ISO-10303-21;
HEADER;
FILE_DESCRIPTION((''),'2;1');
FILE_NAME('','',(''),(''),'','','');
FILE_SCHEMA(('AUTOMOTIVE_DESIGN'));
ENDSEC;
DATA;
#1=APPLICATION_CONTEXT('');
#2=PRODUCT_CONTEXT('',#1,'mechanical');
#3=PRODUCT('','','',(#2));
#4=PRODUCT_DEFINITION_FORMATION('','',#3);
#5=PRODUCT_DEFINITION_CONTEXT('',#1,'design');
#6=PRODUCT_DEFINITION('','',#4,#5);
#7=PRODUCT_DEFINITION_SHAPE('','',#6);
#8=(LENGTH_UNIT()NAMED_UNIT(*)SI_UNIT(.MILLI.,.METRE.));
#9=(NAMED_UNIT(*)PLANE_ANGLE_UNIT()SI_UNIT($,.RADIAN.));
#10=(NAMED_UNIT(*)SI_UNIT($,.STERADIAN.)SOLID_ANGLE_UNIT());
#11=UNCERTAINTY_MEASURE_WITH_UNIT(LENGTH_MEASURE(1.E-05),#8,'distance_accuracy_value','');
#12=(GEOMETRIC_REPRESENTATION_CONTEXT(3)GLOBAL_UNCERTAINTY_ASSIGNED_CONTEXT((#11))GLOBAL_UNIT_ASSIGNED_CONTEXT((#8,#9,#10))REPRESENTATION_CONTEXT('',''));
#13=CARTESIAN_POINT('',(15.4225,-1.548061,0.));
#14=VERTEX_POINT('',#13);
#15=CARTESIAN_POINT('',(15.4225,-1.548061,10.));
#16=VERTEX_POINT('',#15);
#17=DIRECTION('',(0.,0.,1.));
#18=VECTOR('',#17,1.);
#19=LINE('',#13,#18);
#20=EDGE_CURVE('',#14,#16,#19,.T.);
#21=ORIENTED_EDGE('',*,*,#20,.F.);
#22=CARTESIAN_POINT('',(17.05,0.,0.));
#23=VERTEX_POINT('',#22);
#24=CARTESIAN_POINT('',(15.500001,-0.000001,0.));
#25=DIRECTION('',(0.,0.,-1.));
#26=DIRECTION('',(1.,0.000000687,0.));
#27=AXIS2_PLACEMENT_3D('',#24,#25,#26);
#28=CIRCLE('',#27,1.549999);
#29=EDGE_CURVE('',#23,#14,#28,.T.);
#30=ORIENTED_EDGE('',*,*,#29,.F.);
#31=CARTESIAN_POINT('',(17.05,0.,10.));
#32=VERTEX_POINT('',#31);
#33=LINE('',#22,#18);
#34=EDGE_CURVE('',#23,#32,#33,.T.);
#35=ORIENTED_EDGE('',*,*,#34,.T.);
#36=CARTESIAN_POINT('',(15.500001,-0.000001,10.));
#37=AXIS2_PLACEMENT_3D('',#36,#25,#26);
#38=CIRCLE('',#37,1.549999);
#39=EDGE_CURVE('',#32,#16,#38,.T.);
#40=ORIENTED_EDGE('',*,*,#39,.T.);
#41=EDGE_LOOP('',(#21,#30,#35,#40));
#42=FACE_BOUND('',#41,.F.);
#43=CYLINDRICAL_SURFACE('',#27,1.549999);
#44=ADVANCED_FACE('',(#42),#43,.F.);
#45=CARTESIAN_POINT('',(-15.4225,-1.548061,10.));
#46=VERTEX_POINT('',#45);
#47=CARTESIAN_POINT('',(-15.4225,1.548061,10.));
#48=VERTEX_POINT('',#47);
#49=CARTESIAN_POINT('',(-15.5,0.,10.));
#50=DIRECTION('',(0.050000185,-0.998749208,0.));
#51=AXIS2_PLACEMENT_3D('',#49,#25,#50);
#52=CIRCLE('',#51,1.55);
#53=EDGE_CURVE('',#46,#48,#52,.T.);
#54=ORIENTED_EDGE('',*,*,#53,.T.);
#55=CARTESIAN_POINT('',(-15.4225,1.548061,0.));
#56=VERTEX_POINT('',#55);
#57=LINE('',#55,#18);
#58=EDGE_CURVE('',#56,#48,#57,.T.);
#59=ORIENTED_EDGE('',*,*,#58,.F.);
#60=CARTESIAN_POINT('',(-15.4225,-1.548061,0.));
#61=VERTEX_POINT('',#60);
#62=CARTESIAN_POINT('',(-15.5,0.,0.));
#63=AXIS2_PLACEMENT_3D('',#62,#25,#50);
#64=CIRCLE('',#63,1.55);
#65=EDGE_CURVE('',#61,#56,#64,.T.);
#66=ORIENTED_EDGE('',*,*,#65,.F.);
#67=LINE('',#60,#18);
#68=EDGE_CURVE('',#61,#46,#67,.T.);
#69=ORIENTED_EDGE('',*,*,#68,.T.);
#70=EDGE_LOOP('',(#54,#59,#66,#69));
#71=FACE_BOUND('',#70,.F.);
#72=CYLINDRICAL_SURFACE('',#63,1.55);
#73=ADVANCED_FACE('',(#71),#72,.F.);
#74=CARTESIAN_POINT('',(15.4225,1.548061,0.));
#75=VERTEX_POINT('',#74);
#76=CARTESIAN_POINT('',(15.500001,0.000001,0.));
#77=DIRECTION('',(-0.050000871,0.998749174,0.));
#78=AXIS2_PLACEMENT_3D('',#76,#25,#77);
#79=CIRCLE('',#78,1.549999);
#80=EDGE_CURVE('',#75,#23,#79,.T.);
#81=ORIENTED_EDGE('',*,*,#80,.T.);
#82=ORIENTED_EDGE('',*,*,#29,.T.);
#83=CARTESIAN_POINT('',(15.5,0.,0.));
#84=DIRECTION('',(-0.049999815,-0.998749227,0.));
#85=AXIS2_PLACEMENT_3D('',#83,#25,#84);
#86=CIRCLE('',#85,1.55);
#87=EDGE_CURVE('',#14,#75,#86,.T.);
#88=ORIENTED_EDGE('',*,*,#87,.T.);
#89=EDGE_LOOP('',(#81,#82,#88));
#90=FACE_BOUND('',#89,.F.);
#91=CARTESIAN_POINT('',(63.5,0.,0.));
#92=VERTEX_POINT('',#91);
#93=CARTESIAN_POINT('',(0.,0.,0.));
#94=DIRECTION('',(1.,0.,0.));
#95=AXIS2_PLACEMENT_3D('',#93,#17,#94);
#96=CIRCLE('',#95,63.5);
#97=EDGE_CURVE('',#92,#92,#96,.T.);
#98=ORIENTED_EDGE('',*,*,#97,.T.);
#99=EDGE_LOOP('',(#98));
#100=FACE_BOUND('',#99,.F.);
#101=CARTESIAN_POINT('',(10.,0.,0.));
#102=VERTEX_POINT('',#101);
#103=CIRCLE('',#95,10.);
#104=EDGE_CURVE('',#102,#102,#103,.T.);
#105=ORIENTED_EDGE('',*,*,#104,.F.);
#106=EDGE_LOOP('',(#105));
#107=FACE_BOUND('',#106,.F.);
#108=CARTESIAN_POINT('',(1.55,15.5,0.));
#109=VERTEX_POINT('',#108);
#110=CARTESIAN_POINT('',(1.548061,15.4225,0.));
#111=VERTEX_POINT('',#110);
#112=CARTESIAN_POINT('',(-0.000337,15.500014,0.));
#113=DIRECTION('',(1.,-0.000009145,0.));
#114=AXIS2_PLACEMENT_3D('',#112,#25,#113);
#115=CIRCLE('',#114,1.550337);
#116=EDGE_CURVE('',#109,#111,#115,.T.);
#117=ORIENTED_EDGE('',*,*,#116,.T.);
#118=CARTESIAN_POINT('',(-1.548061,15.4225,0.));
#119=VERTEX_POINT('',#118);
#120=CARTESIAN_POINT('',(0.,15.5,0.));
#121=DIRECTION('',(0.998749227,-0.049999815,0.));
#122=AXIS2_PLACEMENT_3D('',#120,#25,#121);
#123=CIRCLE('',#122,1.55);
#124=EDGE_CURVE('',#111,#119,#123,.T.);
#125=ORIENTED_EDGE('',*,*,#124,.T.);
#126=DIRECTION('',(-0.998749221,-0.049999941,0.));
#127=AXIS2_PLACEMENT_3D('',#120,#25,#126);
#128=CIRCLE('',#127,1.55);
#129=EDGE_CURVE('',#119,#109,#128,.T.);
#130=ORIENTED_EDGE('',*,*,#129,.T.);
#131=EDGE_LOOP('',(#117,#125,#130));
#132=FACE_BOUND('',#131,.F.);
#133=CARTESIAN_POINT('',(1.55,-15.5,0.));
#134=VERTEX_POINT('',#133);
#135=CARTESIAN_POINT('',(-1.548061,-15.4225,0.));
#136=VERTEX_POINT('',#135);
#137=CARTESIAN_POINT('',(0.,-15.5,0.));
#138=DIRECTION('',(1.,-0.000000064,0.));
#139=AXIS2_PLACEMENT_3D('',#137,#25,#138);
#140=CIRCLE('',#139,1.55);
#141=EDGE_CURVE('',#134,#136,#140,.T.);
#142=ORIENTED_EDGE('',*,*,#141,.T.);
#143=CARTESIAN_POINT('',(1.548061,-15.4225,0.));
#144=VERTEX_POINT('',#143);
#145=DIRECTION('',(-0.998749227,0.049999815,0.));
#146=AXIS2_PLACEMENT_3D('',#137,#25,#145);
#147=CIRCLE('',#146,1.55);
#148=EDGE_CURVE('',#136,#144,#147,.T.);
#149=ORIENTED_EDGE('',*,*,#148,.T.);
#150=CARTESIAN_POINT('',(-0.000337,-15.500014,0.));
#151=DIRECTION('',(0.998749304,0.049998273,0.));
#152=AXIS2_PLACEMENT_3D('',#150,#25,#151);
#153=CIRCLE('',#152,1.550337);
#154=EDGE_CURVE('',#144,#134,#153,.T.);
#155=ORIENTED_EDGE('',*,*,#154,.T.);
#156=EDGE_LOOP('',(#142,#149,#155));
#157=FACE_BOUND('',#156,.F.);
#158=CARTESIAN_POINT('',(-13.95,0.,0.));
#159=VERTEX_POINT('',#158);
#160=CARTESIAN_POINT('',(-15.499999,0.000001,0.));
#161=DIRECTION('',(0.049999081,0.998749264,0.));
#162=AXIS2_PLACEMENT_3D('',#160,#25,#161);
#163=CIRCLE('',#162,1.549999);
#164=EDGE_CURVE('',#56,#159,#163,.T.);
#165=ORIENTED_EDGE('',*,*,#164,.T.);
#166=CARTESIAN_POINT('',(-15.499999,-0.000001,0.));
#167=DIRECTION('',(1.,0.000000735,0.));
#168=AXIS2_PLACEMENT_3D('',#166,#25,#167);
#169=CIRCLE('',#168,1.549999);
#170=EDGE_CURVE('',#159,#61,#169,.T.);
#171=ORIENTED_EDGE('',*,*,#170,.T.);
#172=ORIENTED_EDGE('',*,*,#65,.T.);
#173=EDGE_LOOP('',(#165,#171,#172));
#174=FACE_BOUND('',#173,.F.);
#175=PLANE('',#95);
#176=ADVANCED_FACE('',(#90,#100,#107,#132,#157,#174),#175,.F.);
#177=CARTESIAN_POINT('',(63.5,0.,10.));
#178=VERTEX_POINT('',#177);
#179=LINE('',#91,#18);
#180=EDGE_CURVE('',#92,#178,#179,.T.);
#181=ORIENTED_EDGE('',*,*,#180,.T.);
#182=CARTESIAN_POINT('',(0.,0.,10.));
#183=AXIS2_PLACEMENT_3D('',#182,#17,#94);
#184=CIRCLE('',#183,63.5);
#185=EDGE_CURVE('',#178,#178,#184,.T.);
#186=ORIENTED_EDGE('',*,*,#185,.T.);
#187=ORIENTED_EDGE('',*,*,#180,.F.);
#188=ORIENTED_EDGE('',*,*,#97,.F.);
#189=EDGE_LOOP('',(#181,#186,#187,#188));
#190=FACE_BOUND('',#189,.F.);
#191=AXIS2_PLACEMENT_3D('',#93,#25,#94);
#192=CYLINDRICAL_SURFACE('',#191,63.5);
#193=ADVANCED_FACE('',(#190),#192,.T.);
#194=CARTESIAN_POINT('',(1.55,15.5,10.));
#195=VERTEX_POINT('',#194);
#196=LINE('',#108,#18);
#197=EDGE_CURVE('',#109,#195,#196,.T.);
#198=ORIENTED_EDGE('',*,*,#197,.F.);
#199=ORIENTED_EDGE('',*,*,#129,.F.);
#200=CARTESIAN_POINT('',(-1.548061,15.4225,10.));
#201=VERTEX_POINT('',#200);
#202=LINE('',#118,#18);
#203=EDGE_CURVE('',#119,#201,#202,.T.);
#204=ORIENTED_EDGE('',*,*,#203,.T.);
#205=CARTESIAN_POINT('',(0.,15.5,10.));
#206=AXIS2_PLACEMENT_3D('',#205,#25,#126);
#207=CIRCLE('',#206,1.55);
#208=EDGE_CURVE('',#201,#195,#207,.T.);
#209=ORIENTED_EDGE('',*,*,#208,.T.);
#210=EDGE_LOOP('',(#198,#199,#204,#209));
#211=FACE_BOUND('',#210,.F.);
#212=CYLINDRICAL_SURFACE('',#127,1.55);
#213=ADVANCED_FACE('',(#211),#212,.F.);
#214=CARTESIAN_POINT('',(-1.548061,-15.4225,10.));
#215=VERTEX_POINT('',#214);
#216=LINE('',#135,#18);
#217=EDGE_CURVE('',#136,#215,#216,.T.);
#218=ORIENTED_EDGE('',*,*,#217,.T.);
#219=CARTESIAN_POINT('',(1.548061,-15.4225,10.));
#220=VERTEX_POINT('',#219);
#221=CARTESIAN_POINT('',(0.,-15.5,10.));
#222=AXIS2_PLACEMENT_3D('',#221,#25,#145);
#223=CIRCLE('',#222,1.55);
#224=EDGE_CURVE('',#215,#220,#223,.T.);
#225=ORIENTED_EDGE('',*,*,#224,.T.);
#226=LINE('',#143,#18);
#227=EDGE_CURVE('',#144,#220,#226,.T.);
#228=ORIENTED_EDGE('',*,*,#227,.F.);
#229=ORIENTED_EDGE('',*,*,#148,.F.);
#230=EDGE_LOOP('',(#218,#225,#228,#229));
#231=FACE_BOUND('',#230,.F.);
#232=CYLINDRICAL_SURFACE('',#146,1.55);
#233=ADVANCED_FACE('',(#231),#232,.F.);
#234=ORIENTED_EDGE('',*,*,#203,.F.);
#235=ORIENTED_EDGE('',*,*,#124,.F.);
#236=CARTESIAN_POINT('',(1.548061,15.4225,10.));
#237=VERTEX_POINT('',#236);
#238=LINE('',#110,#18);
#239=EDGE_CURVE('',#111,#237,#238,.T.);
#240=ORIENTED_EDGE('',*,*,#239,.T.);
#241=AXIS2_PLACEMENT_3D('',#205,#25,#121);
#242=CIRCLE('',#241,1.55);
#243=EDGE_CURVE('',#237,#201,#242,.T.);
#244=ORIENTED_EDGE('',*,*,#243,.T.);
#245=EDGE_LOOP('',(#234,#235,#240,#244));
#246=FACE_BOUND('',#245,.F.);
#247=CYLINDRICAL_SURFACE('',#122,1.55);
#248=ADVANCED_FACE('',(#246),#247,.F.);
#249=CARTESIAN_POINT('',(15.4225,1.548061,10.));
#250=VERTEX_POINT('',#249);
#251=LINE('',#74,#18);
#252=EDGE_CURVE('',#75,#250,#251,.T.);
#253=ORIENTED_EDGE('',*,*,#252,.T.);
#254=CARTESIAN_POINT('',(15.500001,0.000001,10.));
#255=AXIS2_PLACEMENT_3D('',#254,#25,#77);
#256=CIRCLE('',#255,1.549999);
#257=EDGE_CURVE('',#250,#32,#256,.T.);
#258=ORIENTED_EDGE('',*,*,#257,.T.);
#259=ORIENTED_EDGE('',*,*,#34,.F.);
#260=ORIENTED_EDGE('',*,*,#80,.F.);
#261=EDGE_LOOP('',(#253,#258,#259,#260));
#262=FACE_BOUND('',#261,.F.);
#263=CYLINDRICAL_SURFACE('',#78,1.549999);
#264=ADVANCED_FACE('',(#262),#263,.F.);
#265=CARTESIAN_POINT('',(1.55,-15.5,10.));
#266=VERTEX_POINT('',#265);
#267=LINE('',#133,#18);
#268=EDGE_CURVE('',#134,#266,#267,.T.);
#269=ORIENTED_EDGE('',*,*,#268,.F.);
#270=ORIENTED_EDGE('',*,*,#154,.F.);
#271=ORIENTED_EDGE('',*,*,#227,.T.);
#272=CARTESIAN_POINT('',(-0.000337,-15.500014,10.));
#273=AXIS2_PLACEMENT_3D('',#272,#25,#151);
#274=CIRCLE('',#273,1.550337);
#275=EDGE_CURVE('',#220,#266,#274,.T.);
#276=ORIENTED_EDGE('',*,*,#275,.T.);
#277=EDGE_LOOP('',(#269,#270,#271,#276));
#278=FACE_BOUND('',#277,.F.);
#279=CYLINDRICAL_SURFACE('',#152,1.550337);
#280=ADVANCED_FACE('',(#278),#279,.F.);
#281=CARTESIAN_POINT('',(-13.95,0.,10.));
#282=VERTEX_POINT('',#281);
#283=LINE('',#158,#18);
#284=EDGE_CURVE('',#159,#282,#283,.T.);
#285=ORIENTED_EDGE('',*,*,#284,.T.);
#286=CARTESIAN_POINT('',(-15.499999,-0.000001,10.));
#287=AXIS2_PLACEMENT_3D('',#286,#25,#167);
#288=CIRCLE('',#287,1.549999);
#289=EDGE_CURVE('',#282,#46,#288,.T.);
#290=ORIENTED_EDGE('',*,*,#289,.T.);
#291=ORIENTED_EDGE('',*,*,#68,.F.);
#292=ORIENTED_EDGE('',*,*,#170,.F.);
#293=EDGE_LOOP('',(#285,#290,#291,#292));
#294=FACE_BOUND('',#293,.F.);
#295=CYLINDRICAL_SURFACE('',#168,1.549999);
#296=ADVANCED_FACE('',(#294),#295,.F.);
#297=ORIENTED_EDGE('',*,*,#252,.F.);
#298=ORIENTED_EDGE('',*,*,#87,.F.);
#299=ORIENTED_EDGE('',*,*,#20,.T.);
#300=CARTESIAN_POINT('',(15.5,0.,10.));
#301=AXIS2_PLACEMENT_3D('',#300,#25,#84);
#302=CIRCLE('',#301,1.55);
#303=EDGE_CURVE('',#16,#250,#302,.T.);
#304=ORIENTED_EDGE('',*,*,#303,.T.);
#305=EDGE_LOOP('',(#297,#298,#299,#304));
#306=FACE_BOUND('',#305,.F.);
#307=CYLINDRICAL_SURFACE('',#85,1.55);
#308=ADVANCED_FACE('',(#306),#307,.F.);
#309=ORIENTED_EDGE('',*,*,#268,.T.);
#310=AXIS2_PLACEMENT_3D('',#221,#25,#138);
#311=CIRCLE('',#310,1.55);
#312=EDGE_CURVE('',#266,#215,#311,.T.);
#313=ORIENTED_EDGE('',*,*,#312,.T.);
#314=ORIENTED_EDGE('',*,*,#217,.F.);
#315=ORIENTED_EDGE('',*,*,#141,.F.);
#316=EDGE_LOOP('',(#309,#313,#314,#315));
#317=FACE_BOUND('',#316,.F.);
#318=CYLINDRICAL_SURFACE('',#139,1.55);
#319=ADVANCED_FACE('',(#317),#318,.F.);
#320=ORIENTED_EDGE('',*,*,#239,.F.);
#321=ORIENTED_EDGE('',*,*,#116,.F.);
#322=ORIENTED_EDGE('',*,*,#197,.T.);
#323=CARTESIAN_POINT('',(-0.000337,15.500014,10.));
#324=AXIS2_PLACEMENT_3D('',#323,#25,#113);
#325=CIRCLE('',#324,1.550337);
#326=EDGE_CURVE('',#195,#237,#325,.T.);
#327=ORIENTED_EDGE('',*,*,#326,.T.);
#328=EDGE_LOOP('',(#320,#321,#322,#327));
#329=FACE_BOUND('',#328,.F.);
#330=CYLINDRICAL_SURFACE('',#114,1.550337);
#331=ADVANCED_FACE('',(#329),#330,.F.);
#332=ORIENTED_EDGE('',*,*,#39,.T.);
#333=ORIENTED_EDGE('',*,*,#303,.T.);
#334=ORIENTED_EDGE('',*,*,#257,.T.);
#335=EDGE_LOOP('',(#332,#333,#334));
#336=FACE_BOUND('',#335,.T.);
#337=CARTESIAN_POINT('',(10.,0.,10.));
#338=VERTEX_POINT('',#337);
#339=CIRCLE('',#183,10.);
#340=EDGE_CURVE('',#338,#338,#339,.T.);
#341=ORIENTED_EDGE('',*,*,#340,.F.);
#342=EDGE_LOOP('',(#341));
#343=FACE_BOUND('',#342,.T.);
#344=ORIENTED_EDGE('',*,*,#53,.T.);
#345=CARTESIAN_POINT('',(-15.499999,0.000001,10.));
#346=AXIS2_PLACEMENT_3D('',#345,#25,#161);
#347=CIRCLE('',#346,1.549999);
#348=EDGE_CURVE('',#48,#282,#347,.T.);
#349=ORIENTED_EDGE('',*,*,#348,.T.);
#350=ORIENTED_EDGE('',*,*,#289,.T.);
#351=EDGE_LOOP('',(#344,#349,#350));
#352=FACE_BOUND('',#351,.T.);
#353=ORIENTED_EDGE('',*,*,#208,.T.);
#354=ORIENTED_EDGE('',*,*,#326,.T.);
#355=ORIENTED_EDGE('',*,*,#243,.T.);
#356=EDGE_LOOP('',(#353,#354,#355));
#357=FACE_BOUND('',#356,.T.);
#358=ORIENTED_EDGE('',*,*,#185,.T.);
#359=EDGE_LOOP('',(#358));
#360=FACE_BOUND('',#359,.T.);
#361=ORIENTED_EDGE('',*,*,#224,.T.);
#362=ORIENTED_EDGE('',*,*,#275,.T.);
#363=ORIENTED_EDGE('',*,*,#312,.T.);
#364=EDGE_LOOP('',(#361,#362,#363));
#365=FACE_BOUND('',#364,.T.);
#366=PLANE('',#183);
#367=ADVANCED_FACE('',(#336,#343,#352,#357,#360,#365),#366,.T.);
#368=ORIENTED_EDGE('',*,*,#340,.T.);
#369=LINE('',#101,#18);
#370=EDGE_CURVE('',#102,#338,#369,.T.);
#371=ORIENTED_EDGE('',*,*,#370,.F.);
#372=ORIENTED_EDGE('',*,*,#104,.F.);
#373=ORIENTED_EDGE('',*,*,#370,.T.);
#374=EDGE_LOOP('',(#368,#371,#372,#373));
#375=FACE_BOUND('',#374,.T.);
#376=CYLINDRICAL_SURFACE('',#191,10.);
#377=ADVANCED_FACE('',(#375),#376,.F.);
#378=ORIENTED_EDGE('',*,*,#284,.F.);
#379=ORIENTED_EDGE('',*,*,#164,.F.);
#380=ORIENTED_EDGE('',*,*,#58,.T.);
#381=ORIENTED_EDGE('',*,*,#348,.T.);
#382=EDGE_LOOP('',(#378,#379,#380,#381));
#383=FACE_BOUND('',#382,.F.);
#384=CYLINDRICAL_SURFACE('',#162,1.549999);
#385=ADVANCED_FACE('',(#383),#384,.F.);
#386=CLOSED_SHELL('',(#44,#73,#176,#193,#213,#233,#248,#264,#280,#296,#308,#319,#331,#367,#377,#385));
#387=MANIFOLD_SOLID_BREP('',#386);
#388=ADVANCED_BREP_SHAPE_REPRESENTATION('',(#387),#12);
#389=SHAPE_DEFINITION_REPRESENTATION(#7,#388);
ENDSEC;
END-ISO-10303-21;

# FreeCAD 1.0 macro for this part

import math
import FreeCAD as App
import Part
import Sketcher
from FreeCAD import Vector
Q = App.Units.Quantity

doc = App.newDocument("Part")
body = doc.addObject("PartDesign::Body", "Body")

# Sketch on XY plane
sketch1 = body.newObject("Sketcher::SketchObject", "Sketch")
sketch1.AttachmentSupport = (doc.getObject("XY_Plane"), [""])
sketch1.MapMode = "FlatFace"
sketch1.addGeometry([
    Part.Circle(Vector(0, 0, 0), Vector(0, 0, 1), 63.5),  # 0
    Part.ArcOfCircle(Part.Circle(Vector(0, -15.5, 0), Vector(0, 0, 1), 1.55), math.radians(177.134019), math.radians(359.999996)),  # 1
    Part.ArcOfCircle(Part.Circle(Vector(0, -15.5, 0), Vector(0, 0, 1), 1.55), math.radians(2.865973), math.radians(177.134027)),  # 2
    Part.ArcOfCircle(Part.Circle(Vector(-0.000337, -15.500014, 0), Vector(0, 0, 1), 1.550337), math.radians(0.000524), math.radians(2.865885)),  # 3
    Part.ArcOfCircle(Part.Circle(Vector(-15.5, 0, 0), Vector(0, 0, 1), 1.55), math.radians(87.134005), math.radians(272.865995)),  # 4
    Part.ArcOfCircle(Part.Circle(Vector(-15.499999, 0.000001, 0), Vector(0, 0, 1), 1.549999), math.radians(-0.000042), math.radians(87.134069)),  # 5
    Part.ArcOfCircle(Part.Circle(Vector(-15.499999, -0.000001, 0), Vector(0, 0, 1), 1.549999), math.radians(-87.134069), math.radians(0.000042)),  # 6
    Part.Circle(Vector(0, 0, 0), Vector(0, 0, 1), 10),  # 7
    Part.ArcOfCircle(Part.Circle(Vector(15.500001, -0.000001, 0), Vector(0, 0, 1), 1.549999), math.radians(-92.866034), math.radians(0.000039)),  # 8
    Part.ArcOfCircle(Part.Circle(Vector(15.5, 0, 0), Vector(0, 0, 1), 1.55), math.radians(92.865973), math.radians(267.134027)),  # 9
    Part.ArcOfCircle(Part.Circle(Vector(15.500001, 0.000001, 0), Vector(0, 0, 1), 1.549999), math.radians(-0.000039), math.radians(92.866034)),  # 10
    Part.ArcOfCircle(Part.Circle(Vector(-0.000337, 15.500014, 0), Vector(0, 0, 1), 1.550337), math.radians(-2.865885), math.radians(-0.000524)),  # 11
    Part.ArcOfCircle(Part.Circle(Vector(0, 15.5, 0), Vector(0, 0, 1), 1.55), math.radians(-177.134027), math.radians(-2.865973)),  # 12
    Part.ArcOfCircle(Part.Circle(Vector(0, 15.5, 0), Vector(0, 0, 1), 1.55), math.radians(0.000004), math.radians(182.865981)),  # 13
], False)
sketch1.addConstraint([
    Sketcher.Constraint("Coincident", 1, 1, 2, 2),
    Sketcher.Constraint("Coincident", 2, 1, 3, 2),
    Sketcher.Constraint("Coincident", 3, 1, 1, 2),
    Sketcher.Constraint("Coincident", 4, 1, 5, 2),
    Sketcher.Constraint("Coincident", 5, 1, 6, 2),
    Sketcher.Constraint("Coincident", 6, 1, 4, 2),
    Sketcher.Constraint("Coincident", 8, 1, 9, 2),
    Sketcher.Constraint("Coincident", 9, 1, 10, 2),
    Sketcher.Constraint("Coincident", 10, 1, 8, 2),
    Sketcher.Constraint("Coincident", 11, 1, 12, 2),
    Sketcher.Constraint("Coincident", 12, 1, 13, 2),
    Sketcher.Constraint("Coincident", 13, 1, 11, 2),
    Sketcher.Constraint("Coincident", 0, 3, -1, 1),
    Sketcher.Constraint("Coincident", 7, 3, -1, 1),
    Sketcher.Constraint("Coincident", 2, 3, 1, 3),
    Sketcher.Constraint("Coincident", 5, 3, 4, 3),
    Sketcher.Constraint("Coincident", 9, 3, 8, 3),
    Sketcher.Constraint("Coincident", 13, 3, 12, 3),
    Sketcher.Constraint("PointOnObject", 1, 3, -2),
    Sketcher.Constraint("PointOnObject", 4, 3, -1),
    Sketcher.Constraint("PointOnObject", 6, 3, -1),
    Sketcher.Constraint("PointOnObject", 8, 3, -1),
    Sketcher.Constraint("PointOnObject", 10, 3, -1),
    Sketcher.Constraint("PointOnObject", 12, 3, -2),
    Sketcher.Constraint("PointOnObject", 5, 1, -1),
    Sketcher.Constraint("PointOnObject", 10, 1, -1),
    Sketcher.Constraint("Diameter", 0, Q("127 mm")),
    Sketcher.Constraint("Diameter", 7, Q("20 mm")),
    Sketcher.Constraint("Radius", 1, Q("1.55 mm")),
    Sketcher.Constraint("Radius", 4, Q("1.55 mm")),
    Sketcher.Constraint("Radius", 8, Q("1.549999 mm")),
    Sketcher.Constraint("Radius", 12, Q("1.55 mm")),
    Sketcher.Constraint("DistanceY", 1, 3, -1, 1, Q("15.5 mm")),
    Sketcher.Constraint("DistanceX", 4, 3, -1, 1, Q("15.5 mm")),
    Sketcher.Constraint("DistanceX", -1, 1, 8, 3, Q("15.500001 mm")),
    Sketcher.Constraint("DistanceY", -1, 1, 12, 3, Q("15.5 mm")),
    Sketcher.Constraint("DistanceY", 3, 1, -1, 1, Q("15.5 mm")),
    Sketcher.Constraint("DistanceY", -1, 1, 13, 1, Q("15.5 mm")),
    Sketcher.Constraint("Radius", 3, Q("1.550337 mm")),
    Sketcher.Constraint("Radius", 11, Q("1.550337 mm")),
    Sketcher.Constraint("DistanceY", 1, 1, -1, 1, Q("15.4225 mm")),
    Sketcher.Constraint("DistanceY", 2, 1, -1, 1, Q("15.4225 mm")),
    Sketcher.Constraint("DistanceX", 4, 1, -1, 1, Q("15.4225 mm")),
    Sketcher.Constraint("DistanceX", 6, 1, -1, 1, Q("15.4225 mm")),
    Sketcher.Constraint("DistanceX", -1, 1, 8, 1, Q("15.4225 mm")),
    Sketcher.Constraint("DistanceX", -1, 1, 9, 1, Q("15.4225 mm")),
    Sketcher.Constraint("DistanceY", -1, 1, 11, 1, Q("15.4225 mm")),
    Sketcher.Constraint("DistanceY", -1, 1, 12, 1, Q("15.4225 mm")),
])
pad1 = body.newObject("PartDesign::Pad", "Pad")
pad1.Profile = sketch1
pad1.Length = 10

doc.recompute()
